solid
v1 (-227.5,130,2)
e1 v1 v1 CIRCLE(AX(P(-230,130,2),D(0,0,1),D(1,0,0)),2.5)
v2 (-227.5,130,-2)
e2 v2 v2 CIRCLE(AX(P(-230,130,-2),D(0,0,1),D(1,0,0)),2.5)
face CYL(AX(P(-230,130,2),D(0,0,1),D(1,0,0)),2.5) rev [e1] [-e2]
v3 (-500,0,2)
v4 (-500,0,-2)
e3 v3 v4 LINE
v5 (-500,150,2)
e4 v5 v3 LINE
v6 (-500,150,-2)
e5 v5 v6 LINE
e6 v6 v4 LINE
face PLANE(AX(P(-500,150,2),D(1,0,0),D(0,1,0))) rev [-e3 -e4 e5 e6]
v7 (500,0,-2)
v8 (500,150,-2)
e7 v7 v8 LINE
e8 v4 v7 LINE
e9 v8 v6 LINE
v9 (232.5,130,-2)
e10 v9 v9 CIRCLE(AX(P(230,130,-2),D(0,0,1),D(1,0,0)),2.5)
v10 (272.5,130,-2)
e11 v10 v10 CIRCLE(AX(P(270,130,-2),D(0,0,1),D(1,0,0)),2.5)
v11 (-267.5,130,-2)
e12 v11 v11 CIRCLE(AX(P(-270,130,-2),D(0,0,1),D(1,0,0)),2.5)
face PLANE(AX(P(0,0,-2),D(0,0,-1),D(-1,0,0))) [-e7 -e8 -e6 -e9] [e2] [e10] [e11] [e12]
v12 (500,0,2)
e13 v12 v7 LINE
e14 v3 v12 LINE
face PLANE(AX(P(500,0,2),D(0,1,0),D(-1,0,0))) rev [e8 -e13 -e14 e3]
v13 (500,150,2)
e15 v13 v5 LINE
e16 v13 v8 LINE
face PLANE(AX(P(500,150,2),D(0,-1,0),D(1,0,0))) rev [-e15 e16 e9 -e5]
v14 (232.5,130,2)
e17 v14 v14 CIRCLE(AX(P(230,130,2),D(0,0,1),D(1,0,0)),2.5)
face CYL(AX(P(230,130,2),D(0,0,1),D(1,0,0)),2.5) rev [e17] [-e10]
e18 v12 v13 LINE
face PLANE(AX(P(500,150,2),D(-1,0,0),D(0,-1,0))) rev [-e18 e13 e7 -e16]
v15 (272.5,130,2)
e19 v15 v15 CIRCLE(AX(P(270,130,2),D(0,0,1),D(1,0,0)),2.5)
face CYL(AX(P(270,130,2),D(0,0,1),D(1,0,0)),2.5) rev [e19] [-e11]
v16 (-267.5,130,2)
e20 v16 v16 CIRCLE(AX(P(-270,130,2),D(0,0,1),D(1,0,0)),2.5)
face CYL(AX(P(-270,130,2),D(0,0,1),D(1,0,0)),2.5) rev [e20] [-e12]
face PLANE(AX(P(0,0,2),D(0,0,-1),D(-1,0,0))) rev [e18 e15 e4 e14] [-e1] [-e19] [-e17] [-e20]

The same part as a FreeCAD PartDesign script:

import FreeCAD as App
import Part
import Sketcher
from FreeCAD import Vector


def add_polygon(sketch, points):
    """Adds a closed chain of lines whose ends are joined by coincident constraints."""
    first, n = sketch.GeometryCount, len(points)
    for a, b in zip(points, points[1:] + points[:1]):
        sketch.addGeometry(Part.LineSegment(App.Vector(*a, 0), App.Vector(*b, 0)), False)
    for i in range(n):
        sketch.addConstraint(Sketcher.Constraint("Coincident", first + i, 2, first + (i + 1) % n, 1))

doc = App.newDocument("Part")
body = doc.addObject("PartDesign::Body", "Body")

# Sketch on XY plane
sketch1 = body.newObject("Sketcher::SketchObject", "Sketch")
sketch1.AttachmentSupport = (doc.getObject("XY_Plane"), [""])
sketch1.MapMode = "FlatFace"
add_polygon(sketch1, [(-500, 150), (-500, 0), (500, 0), (500, 150)])  # lines 0-3
sketch1.addConstraint(Sketcher.Constraint("Vertical", 0))
sketch1.addConstraint(Sketcher.Constraint("Horizontal", 1))
sketch1.addConstraint(Sketcher.Constraint("Vertical", 2))
sketch1.addConstraint(Sketcher.Constraint("Horizontal", 3))
sketch1.addConstraint(Sketcher.Constraint("Symmetric", 0, 2, 1, 2, -1, 1))
sketch1.addConstraint(Sketcher.Constraint("DistanceX", 1, 1, 1, 2, 1000.0))
sketch1.addConstraint(Sketcher.Constraint("DistanceY", 0, 2, 0, 1, 150.0))
pad1 = body.newObject("PartDesign::Pad", "Pad")
pad1.Profile = sketch1
pad1.Length = 4
pad1.Midplane = True

# Sketch on XY plane
sketch2 = body.newObject("Sketcher::SketchObject", "Sketch001")
sketch2.AttachmentSupport = (doc.getObject("XY_Plane"), [""])
sketch2.MapMode = "FlatFace"
sketch2.AttachmentOffset = App.Placement(Vector(0, 0, 2), App.Rotation())
sketch2.addGeometry(Part.Circle(Vector(270, 130, 0), Vector(0, 0, 1), 2.5), False)
sketch2.addGeometry(Part.Circle(Vector(-270, 130, 0), Vector(0, 0, 1), 2.5), False)
sketch2.addGeometry(Part.Circle(Vector(-230, 130, 0), Vector(0, 0, 1), 2.5), False)
sketch2.addGeometry(Part.Circle(Vector(230, 130, 0), Vector(0, 0, 1), 2.5), False)
sketch2.addConstraint(Sketcher.Constraint("Equal", 0, 1))
sketch2.addConstraint(Sketcher.Constraint("Equal", 1, 2))
sketch2.addConstraint(Sketcher.Constraint("Equal", 2, 3))
sketch2.addConstraint(Sketcher.Constraint("Symmetric", 0, 3, 1, 3, -2))
sketch2.addConstraint(Sketcher.Constraint("Symmetric", 2, 3, 3, 3, -2))
sketch2.addConstraint(Sketcher.Constraint("Horizontal", 1, 3, 2, 3))
sketch2.addConstraint(Sketcher.Constraint("Diameter", 0, 5.0))
sketch2.addConstraint(Sketcher.Constraint("DistanceX", -1, 1, 0, 3, 270.0))
sketch2.addConstraint(Sketcher.Constraint("DistanceY", -1, 1, 0, 3, 130.0))
sketch2.addConstraint(Sketcher.Constraint("DistanceX", 2, 3, -1, 1, 230.0))
doc.recompute()
hole = body.newObject("PartDesign::Hole", "Hole")
hole.Profile = sketch2
hole.ThreadType = "None"
hole.Diameter = 5
hole.DepthType = "ThroughAll"

doc.recompute()
